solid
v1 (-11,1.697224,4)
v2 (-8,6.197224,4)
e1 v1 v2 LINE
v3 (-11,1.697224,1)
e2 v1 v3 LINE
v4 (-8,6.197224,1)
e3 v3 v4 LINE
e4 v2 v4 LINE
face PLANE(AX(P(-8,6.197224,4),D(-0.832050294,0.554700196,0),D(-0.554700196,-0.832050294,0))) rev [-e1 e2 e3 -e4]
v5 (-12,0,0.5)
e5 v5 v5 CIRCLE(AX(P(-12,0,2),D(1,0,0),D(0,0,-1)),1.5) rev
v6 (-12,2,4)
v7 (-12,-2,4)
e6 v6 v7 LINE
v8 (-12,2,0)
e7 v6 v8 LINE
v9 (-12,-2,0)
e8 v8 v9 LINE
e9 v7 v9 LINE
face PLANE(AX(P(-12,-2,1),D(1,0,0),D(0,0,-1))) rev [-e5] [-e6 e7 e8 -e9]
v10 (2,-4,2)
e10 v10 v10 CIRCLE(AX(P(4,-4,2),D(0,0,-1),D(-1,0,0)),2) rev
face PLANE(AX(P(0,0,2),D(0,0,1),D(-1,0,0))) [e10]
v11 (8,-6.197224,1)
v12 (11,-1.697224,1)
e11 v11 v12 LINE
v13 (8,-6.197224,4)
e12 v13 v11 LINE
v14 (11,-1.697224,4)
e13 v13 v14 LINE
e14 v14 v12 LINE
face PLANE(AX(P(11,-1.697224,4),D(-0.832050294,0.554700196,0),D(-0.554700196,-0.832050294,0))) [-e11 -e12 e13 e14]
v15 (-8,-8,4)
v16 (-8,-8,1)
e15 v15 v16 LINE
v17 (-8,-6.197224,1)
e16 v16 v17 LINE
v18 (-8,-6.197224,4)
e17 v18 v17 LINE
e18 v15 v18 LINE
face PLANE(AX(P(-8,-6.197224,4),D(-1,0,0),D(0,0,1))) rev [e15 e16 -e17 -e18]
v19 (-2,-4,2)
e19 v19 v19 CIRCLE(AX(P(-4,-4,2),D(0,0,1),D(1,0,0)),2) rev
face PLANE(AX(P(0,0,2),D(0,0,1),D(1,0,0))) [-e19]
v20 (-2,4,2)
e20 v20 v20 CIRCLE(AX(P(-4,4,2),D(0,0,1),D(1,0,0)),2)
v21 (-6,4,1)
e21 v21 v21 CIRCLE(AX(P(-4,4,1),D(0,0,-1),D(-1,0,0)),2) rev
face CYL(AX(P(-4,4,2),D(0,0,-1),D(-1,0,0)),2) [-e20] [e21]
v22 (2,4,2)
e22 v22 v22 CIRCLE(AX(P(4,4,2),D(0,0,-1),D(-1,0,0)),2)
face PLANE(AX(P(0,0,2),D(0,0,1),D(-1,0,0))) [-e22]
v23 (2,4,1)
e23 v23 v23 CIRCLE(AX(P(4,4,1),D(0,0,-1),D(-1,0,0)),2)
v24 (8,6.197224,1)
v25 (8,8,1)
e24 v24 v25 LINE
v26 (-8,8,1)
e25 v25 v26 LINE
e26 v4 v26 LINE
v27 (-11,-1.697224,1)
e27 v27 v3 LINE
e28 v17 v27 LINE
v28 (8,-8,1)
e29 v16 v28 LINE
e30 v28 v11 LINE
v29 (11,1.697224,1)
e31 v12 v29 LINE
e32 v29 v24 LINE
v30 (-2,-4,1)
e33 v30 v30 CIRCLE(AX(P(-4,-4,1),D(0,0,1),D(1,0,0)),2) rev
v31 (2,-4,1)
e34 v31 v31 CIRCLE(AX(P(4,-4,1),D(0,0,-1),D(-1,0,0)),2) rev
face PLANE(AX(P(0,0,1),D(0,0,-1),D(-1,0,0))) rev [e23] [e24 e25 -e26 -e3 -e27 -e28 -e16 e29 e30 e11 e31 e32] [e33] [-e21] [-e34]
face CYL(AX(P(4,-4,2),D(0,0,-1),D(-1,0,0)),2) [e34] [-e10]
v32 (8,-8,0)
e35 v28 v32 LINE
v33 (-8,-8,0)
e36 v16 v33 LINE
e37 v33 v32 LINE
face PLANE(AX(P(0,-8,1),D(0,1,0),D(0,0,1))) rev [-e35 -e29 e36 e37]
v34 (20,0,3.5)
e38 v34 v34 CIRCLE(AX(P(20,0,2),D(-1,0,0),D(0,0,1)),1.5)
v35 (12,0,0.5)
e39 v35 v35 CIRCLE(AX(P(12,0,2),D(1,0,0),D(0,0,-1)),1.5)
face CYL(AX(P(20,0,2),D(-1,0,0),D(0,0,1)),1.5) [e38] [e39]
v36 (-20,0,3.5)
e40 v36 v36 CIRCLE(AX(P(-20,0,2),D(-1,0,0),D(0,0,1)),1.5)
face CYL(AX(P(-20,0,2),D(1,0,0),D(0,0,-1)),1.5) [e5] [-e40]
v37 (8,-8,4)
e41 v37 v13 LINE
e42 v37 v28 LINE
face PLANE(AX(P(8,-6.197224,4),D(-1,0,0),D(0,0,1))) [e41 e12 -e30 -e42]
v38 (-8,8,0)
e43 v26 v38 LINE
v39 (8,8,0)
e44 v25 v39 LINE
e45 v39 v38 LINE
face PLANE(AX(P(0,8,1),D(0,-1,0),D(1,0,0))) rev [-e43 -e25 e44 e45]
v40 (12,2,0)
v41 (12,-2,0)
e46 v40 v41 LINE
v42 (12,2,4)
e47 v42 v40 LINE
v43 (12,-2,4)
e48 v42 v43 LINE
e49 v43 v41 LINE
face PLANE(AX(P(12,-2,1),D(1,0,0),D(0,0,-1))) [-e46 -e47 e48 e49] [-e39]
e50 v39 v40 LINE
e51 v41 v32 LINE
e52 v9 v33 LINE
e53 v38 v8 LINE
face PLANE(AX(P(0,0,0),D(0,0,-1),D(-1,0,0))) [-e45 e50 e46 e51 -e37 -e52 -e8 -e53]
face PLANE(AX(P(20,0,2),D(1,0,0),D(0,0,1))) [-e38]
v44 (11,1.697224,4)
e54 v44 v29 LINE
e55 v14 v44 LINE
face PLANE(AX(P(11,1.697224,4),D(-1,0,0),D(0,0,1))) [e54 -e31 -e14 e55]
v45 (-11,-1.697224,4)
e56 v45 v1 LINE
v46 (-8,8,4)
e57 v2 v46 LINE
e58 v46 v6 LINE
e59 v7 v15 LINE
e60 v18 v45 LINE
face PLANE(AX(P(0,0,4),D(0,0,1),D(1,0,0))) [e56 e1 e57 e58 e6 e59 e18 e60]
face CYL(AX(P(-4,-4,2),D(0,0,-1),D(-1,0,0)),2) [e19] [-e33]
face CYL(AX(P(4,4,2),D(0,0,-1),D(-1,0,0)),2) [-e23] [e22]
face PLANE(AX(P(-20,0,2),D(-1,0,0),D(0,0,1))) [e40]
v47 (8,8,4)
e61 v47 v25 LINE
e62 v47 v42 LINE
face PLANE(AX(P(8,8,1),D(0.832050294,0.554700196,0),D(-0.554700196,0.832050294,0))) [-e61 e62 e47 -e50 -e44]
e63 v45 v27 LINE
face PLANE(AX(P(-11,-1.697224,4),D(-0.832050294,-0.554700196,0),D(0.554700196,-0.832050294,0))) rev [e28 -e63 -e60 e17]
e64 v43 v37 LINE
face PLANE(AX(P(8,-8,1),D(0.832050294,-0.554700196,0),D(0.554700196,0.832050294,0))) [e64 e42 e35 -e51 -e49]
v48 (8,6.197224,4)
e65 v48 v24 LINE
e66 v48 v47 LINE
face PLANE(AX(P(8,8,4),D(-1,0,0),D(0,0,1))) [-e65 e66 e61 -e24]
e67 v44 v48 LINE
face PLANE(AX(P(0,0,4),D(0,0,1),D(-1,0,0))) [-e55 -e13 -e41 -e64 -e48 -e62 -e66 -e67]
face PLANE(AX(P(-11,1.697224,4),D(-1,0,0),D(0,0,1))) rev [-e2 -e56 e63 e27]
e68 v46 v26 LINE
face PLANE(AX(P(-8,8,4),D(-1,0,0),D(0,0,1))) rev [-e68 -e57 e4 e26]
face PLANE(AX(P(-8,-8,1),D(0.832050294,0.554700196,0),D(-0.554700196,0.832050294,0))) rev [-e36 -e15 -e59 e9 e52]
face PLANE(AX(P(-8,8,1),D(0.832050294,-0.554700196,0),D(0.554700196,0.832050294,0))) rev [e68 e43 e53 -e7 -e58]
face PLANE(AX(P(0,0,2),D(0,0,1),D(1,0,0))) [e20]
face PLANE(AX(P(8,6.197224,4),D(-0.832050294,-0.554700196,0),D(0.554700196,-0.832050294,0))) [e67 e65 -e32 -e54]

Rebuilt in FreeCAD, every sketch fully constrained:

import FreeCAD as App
import Part
import Sketcher
from FreeCAD import Vector
Q = App.Units.Quantity


def add_polygon(sketch, points):
    """Adds a closed chain of lines whose ends are joined by coincident constraints."""
    first, n = sketch.GeometryCount, len(points)
    for a, b in zip(points, points[1:] + points[:1]):
        sketch.addGeometry(Part.LineSegment(App.Vector(*a, 0), App.Vector(*b, 0)), False)
    for i in range(n):
        sketch.addConstraint(Sketcher.Constraint("Coincident", first + i, 2, first + (i + 1) % n, 1))

doc = App.newDocument("Part")
body = doc.addObject("PartDesign::Body", "Body")

sketch1 = body.newObject("Sketcher::SketchObject", "Sketch")
sketch1.AttachmentSupport = (doc.getObject("XY_Plane"), [""])
sketch1.MapMode = "FlatFace"
add_polygon(sketch1, [(-12, 2), (-12, -2), (-8, -8), (0, -8), (0, 8), (-8, 8)])
sketch1.addConstraint([
    Sketcher.Constraint("Vertical", 0),
    Sketcher.Constraint("Horizontal", 2),
    Sketcher.Constraint("Vertical", 3),
    Sketcher.Constraint("Horizontal", 4),
    Sketcher.Constraint("Symmetric", 2, 2, 3, 2, -1, 1),
    Sketcher.Constraint("Vertical", 1, 2, 4, 2),
    Sketcher.Constraint("Equal", 1, 5),
    Sketcher.Constraint("DistanceX", 2, 1, 2, 2, Q("8 mm")),
    Sketcher.Constraint("DistanceY", 0, 2, 0, 1, Q("4 mm")),
    Sketcher.Constraint("DistanceY", 3, 1, 3, 2, Q("16 mm")),
    Sketcher.Constraint("DistanceX", 0, 2, -1, 1, Q("12 mm")),
])
pad1 = body.newObject("PartDesign::Pad", "Pad")
pad1.Profile = sketch1
pad1.Length = 1

sketch2 = body.newObject("Sketcher::SketchObject", "Sketch001")
sketch2.AttachmentSupport = (doc.getObject("XY_Plane"), [""])
sketch2.MapMode = "FlatFace"
sketch2.AttachmentOffset = App.Placement(Vector(0, 0, 1), App.Rotation())
sketch2.addGeometry([
    Part.Circle(Vector(-4, -4, 0), Vector(0, 0, 1), 2),
    Part.Circle(Vector(-4, 4, 0), Vector(0, 0, 1), 2),
], False)
sketch2.addConstraint([
    Sketcher.Constraint("Equal", 0, 1),
    Sketcher.Constraint("Symmetric", 0, 3, 1, 3, -1),
    Sketcher.Constraint("Diameter", 0, Q("4 mm")),
    Sketcher.Constraint("DistanceX", 0, 3, -1, 1, Q("4 mm")),
    Sketcher.Constraint("DistanceY", 0, 3, -1, 1, Q("4 mm")),
])
pad2 = body.newObject("PartDesign::Pad", "Pad001")
pad2.Profile = sketch2
pad2.Length = 1

sketch3 = body.newObject("Sketcher::SketchObject", "Sketch002")
sketch3.AttachmentSupport = (doc.getObject("XY_Plane"), [""])
sketch3.MapMode = "FlatFace"
sketch3.AttachmentOffset = App.Placement(Vector(0, 0, 1), App.Rotation())
add_polygon(sketch3, [(-12, -2), (-8, -8), (-8, -6.197224), (-11, -1.697224), (-11, 1.697224), (-8, 6.197224), (-8, 8), (-12, 2)])
sketch3.addConstraint([
    Sketcher.Constraint("Vertical", 1),
    Sketcher.Constraint("Vertical", 3),
    Sketcher.Constraint("Vertical", 5),
    Sketcher.Constraint("Vertical", 7),
    Sketcher.Constraint("Symmetric", 1, 2, 4, 2, -1),
    Sketcher.Constraint("Parallel", 0, 2),
    Sketcher.Constraint("Parallel", 4, 6),
    Sketcher.Constraint("Equal", 1, 5),
    Sketcher.Constraint("Equal", 2, 4),
    Sketcher.Constraint("DistanceY", 7, 2, 7, 1, Q("4 mm")),
    Sketcher.Constraint("DistanceX", 0, 2, -1, 1, Q("8 mm")),
    Sketcher.Constraint("DistanceY", 0, 2, -1, 1, Q("8 mm")),
    Sketcher.Constraint("DistanceX", 2, 2, -1, 1, Q("11 mm")),
    Sketcher.Constraint("DistanceX", 6, 2, -1, 1, Q("12 mm")),
    Sketcher.Constraint("DistanceY", 3, 1, 3, 2, Q("3.394449 mm")),
])
pad3 = body.newObject("PartDesign::Pad", "Pad002")
pad3.Profile = sketch3
pad3.Length = 3

sketch4 = body.newObject("Sketcher::SketchObject", "Sketch003")
sketch4.AttachmentSupport = (doc.getObject("YZ_Plane"), [""])
sketch4.MapMode = "FlatFace"
sketch4.AttachmentOffset = App.Placement(Vector(0, 0, -12), App.Rotation())
sketch4.addGeometry(Part.Circle(Vector(0, 2, 0), Vector(0, 0, 1), 1.5), False)
sketch4.addConstraint([
    Sketcher.Constraint("PointOnObject", 0, 3, -2),
    Sketcher.Constraint("Diameter", 0, Q("3 mm")),
    Sketcher.Constraint("DistanceY", -1, 1, 0, 3, Q("2 mm")),
])
pad4 = body.newObject("PartDesign::Pad", "Pad003")
pad4.Profile = sketch4
pad4.Length = 8
pad4.Reversed = True
doc.recompute()

mirrored = body.newObject("PartDesign::Mirrored", "Mirrored")
mirrored.Originals = [pad1, pad2, pad3, pad4]
mirrored.MirrorPlane = (doc.getObject("YZ_Plane"), [""])
body.Tip = mirrored

doc.recompute()
